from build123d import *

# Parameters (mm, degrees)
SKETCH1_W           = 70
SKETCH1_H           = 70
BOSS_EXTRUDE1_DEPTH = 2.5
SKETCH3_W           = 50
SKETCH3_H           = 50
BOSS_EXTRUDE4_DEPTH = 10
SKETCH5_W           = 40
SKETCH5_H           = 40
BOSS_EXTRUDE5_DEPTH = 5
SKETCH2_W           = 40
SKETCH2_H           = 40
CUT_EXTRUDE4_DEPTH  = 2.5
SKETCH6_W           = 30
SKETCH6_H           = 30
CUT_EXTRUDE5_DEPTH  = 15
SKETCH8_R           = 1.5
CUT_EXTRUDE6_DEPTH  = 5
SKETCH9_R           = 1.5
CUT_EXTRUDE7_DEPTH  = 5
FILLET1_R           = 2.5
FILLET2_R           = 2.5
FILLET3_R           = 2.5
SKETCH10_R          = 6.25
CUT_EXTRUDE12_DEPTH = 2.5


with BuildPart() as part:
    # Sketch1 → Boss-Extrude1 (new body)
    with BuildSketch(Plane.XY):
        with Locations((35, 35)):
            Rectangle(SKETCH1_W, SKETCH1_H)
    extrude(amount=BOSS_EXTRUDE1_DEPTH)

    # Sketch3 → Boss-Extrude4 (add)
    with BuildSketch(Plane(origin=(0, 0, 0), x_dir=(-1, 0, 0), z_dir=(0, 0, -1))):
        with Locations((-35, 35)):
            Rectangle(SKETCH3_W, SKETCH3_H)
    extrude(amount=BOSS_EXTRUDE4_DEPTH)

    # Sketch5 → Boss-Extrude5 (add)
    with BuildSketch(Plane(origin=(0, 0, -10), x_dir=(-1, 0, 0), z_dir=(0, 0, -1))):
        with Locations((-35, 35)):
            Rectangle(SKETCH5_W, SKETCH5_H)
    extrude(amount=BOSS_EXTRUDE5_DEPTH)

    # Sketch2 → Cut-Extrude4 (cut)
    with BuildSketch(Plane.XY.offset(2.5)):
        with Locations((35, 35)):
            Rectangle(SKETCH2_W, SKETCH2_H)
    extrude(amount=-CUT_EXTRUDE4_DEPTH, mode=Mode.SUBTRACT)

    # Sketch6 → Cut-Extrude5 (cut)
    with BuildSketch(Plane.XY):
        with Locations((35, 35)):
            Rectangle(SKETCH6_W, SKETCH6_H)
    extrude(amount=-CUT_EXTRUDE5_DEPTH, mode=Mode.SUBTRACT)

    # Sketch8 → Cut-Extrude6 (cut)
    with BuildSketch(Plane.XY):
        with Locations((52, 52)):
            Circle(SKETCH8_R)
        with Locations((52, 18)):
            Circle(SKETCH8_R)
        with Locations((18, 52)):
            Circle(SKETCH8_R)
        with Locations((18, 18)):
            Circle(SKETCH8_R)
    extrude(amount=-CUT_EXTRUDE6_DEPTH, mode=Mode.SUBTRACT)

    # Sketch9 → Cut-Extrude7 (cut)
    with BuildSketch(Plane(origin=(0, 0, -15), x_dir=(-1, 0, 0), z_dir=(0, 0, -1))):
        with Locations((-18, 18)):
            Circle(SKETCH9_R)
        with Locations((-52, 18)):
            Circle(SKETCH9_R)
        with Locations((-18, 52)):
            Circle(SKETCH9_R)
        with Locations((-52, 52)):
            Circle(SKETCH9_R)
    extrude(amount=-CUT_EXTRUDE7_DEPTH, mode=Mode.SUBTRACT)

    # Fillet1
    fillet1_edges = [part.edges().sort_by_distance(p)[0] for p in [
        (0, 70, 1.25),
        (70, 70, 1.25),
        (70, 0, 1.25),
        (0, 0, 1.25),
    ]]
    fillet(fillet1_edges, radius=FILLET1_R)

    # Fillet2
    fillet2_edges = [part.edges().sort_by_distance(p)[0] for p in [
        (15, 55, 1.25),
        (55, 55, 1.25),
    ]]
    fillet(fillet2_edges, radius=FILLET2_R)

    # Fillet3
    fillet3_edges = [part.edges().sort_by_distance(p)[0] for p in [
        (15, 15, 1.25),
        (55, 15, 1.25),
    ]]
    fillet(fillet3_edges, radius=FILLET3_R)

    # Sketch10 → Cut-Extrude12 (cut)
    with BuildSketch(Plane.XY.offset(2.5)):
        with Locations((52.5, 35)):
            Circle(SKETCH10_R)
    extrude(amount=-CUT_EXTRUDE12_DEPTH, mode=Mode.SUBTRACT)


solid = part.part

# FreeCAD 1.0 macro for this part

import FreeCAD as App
import Part
import Sketcher


def edges_at(feature, points):
    """Names of the edges that pass closest to the given points."""
    edges = feature.Shape.Edges
    near = lambda p: min(range(len(edges)), key=lambda i: edges[i].distToShape(Part.Vertex(*p))[0])
    return sorted({f"Edge{near(p) + 1}" for p in points})

doc = App.newDocument("Part")
body = doc.addObject("PartDesign::Body", "Body")

sketch1 = doc.addObject("Sketcher::SketchObject", "Sketch")
body.addObject(sketch1)
sketch1.AttachmentSupport = (doc.XY_Plane, [""])
sketch1.MapMode = "FlatFace"
sketch1.addGeometry(Part.LineSegment(App.Vector(0, 70, 0), App.Vector(0, 0, 0)), False)
sketch1.addGeometry(Part.LineSegment(App.Vector(0, 0, 0), App.Vector(70, 0, 0)), False)
sketch1.addGeometry(Part.LineSegment(App.Vector(70, 0, 0), App.Vector(70, 70, 0)), False)
sketch1.addGeometry(Part.LineSegment(App.Vector(70, 70, 0), App.Vector(0, 70, 0)), False)
sketch1.addConstraint(Sketcher.Constraint("Coincident", 0, 2, 1, 1))
sketch1.addConstraint(Sketcher.Constraint("Coincident", 1, 2, 2, 1))
sketch1.addConstraint(Sketcher.Constraint("Coincident", 2, 2, 3, 1))
sketch1.addConstraint(Sketcher.Constraint("Coincident", 3, 2, 0, 1))
sketch1.addConstraint(Sketcher.Constraint("Vertical", 0))
sketch1.addConstraint(Sketcher.Constraint("Horizontal", 1))
sketch1.addConstraint(Sketcher.Constraint("Vertical", 2))
sketch1.addConstraint(Sketcher.Constraint("Horizontal", 3))
sketch1.addConstraint(Sketcher.Constraint("Coincident", 0, 2, -1, 1))
sketch1.addConstraint(Sketcher.Constraint("Equal", 3, 0))
sketch1.addConstraint(Sketcher.Constraint("DistanceX", 1, 1, 1, 2, 70.0))
pad1 = doc.addObject("PartDesign::Pad", "Pad")
body.addObject(pad1)
pad1.Profile = sketch1
pad1.Length = 2.5

sketch2 = doc.addObject("Sketcher::SketchObject", "Sketch001")
body.addObject(sketch2)
sketch2.AttachmentSupport = (doc.XY_Plane, [""])
sketch2.MapMode = "FlatFace"
sketch2.addGeometry(Part.LineSegment(App.Vector(60, 60, 0), App.Vector(60, 10, 0)), False)
sketch2.addGeometry(Part.LineSegment(App.Vector(60, 10, 0), App.Vector(10, 10, 0)), False)
sketch2.addGeometry(Part.LineSegment(App.Vector(10, 10, 0), App.Vector(10, 60, 0)), False)
sketch2.addGeometry(Part.LineSegment(App.Vector(10, 60, 0), App.Vector(60, 60, 0)), False)
sketch2.addConstraint(Sketcher.Constraint("Coincident", 0, 2, 1, 1))
sketch2.addConstraint(Sketcher.Constraint("Coincident", 1, 2, 2, 1))
sketch2.addConstraint(Sketcher.Constraint("Coincident", 2, 2, 3, 1))
sketch2.addConstraint(Sketcher.Constraint("Coincident", 3, 2, 0, 1))
sketch2.addConstraint(Sketcher.Constraint("Vertical", 0))
sketch2.addConstraint(Sketcher.Constraint("Horizontal", 1))
sketch2.addConstraint(Sketcher.Constraint("Vertical", 2))
sketch2.addConstraint(Sketcher.Constraint("Horizontal", 3))
sketch2.addConstraint(Sketcher.Constraint("Equal", 3, 0))
sketch2.addConstraint(Sketcher.Constraint("DistanceX", 1, 2, 1, 1, 50.0))
sketch2.addConstraint(Sketcher.Constraint("DistanceX", -1, 1, 0, 2, 60.0))
sketch2.addConstraint(Sketcher.Constraint("DistanceY", -1, 1, 0, 2, 10.0))
pad2 = doc.addObject("PartDesign::Pad", "Pad001")
body.addObject(pad2)
pad2.Profile = sketch2
pad2.Length = 10
pad2.Reversed = True

sketch3 = doc.addObject("Sketcher::SketchObject", "Sketch002")
body.addObject(sketch3)
sketch3.AttachmentSupport = (doc.XY_Plane, [""])
sketch3.MapMode = "FlatFace"
sketch3.AttachmentOffset = App.Placement(App.Vector(0, 0, -10), App.Rotation())
sketch3.addGeometry(Part.LineSegment(App.Vector(55, 55, 0), App.Vector(55, 15, 0)), False)
sketch3.addGeometry(Part.LineSegment(App.Vector(55, 15, 0), App.Vector(15, 15, 0)), False)
sketch3.addGeometry(Part.LineSegment(App.Vector(15, 15, 0), App.Vector(15, 55, 0)), False)
sketch3.addGeometry(Part.LineSegment(App.Vector(15, 55, 0), App.Vector(55, 55, 0)), False)
sketch3.addConstraint(Sketcher.Constraint("Coincident", 0, 2, 1, 1))
sketch3.addConstraint(Sketcher.Constraint("Coincident", 1, 2, 2, 1))
sketch3.addConstraint(Sketcher.Constraint("Coincident", 2, 2, 3, 1))
sketch3.addConstraint(Sketcher.Constraint("Coincident", 3, 2, 0, 1))
sketch3.addConstraint(Sketcher.Constraint("Vertical", 0))
sketch3.addConstraint(Sketcher.Constraint("Horizontal", 1))
sketch3.addConstraint(Sketcher.Constraint("Vertical", 2))
sketch3.addConstraint(Sketcher.Constraint("Horizontal", 3))
sketch3.addConstraint(Sketcher.Constraint("Equal", 3, 0))
sketch3.addConstraint(Sketcher.Constraint("DistanceX", 1, 2, 1, 1, 40.0))
sketch3.addConstraint(Sketcher.Constraint("DistanceX", -1, 1, 0, 2, 55.0))
sketch3.addConstraint(Sketcher.Constraint("DistanceY", -1, 1, 0, 2, 15.0))
pad3 = doc.addObject("PartDesign::Pad", "Pad002")
body.addObject(pad3)
pad3.Profile = sketch3
pad3.Length = 5
pad3.Reversed = True

sketch4 = doc.addObject("Sketcher::SketchObject", "Sketch003")
body.addObject(sketch4)
sketch4.AttachmentSupport = (doc.XY_Plane, [""])
sketch4.MapMode = "FlatFace"
sketch4.AttachmentOffset = App.Placement(App.Vector(0, 0, 2.5), App.Rotation())
sketch4.addGeometry(Part.LineSegment(App.Vector(15, 55, 0), App.Vector(15, 15, 0)), False)
sketch4.addGeometry(Part.LineSegment(App.Vector(15, 15, 0), App.Vector(55, 15, 0)), False)
sketch4.addGeometry(Part.LineSegment(App.Vector(55, 15, 0), App.Vector(55, 55, 0)), False)
sketch4.addGeometry(Part.LineSegment(App.Vector(55, 55, 0), App.Vector(15, 55, 0)), False)
sketch4.addConstraint(Sketcher.Constraint("Coincident", 0, 2, 1, 1))
sketch4.addConstraint(Sketcher.Constraint("Coincident", 1, 2, 2, 1))
sketch4.addConstraint(Sketcher.Constraint("Coincident", 2, 2, 3, 1))
sketch4.addConstraint(Sketcher.Constraint("Coincident", 3, 2, 0, 1))
sketch4.addConstraint(Sketcher.Constraint("Vertical", 0))
sketch4.addConstraint(Sketcher.Constraint("Horizontal", 1))
sketch4.addConstraint(Sketcher.Constraint("Vertical", 2))
sketch4.addConstraint(Sketcher.Constraint("Horizontal", 3))
sketch4.addConstraint(Sketcher.Constraint("Equal", 3, 0))
sketch4.addConstraint(Sketcher.Constraint("DistanceX", 1, 1, 1, 2, 40.0))
sketch4.addConstraint(Sketcher.Constraint("DistanceX", -1, 1, 0, 2, 15.0))
sketch4.addConstraint(Sketcher.Constraint("DistanceY", -1, 1, 0, 2, 15.0))
pocket1 = doc.addObject("PartDesign::Pocket", "Pocket")
body.addObject(pocket1)
pocket1.Profile = sketch4
pocket1.Length = 2.5

sketch5 = doc.addObject("Sketcher::SketchObject", "Sketch004")
body.addObject(sketch5)
sketch5.AttachmentSupport = (doc.XY_Plane, [""])
sketch5.MapMode = "FlatFace"
sketch5.addGeometry(Part.LineSegment(App.Vector(20, 50, 0), App.Vector(20, 20, 0)), False)
sketch5.addGeometry(Part.LineSegment(App.Vector(20, 20, 0), App.Vector(50, 20, 0)), False)
sketch5.addGeometry(Part.LineSegment(App.Vector(50, 20, 0), App.Vector(50, 50, 0)), False)
sketch5.addGeometry(Part.LineSegment(App.Vector(50, 50, 0), App.Vector(20, 50, 0)), False)
sketch5.addConstraint(Sketcher.Constraint("Coincident", 0, 2, 1, 1))
sketch5.addConstraint(Sketcher.Constraint("Coincident", 1, 2, 2, 1))
sketch5.addConstraint(Sketcher.Constraint("Coincident", 2, 2, 3, 1))
sketch5.addConstraint(Sketcher.Constraint("Coincident", 3, 2, 0, 1))
sketch5.addConstraint(Sketcher.Constraint("Vertical", 0))
sketch5.addConstraint(Sketcher.Constraint("Horizontal", 1))
sketch5.addConstraint(Sketcher.Constraint("Vertical", 2))
sketch5.addConstraint(Sketcher.Constraint("Horizontal", 3))
sketch5.addConstraint(Sketcher.Constraint("Equal", 3, 0))
sketch5.addConstraint(Sketcher.Constraint("DistanceX", 1, 1, 1, 2, 30.0))
sketch5.addConstraint(Sketcher.Constraint("DistanceX", -1, 1, 0, 2, 20.0))
sketch5.addConstraint(Sketcher.Constraint("DistanceY", -1, 1, 0, 2, 20.0))
pocket2 = doc.addObject("PartDesign::Pocket", "Pocket001")
body.addObject(pocket2)
pocket2.Profile = sketch5
pocket2.Length = 15

sketch6 = doc.addObject("Sketcher::SketchObject", "Sketch005")
body.addObject(sketch6)
sketch6.AttachmentSupport = (doc.XY_Plane, [""])
sketch6.MapMode = "FlatFace"
sketch6.addGeometry(Part.Circle(App.Vector(52, 52, 0), App.Vector(0, 0, 1), 1.5), False)
sketch6.addGeometry(Part.Circle(App.Vector(52, 18, 0), App.Vector(0, 0, 1), 1.5), False)
sketch6.addGeometry(Part.Circle(App.Vector(18, 52, 0), App.Vector(0, 0, 1), 1.5), False)
sketch6.addGeometry(Part.Circle(App.Vector(18, 18, 0), App.Vector(0, 0, 1), 1.5), False)
sketch6.addConstraint(Sketcher.Constraint("Equal", 0, 1))
sketch6.addConstraint(Sketcher.Constraint("Equal", 1, 2))
sketch6.addConstraint(Sketcher.Constraint("Equal", 2, 3))
sketch6.addConstraint(Sketcher.Constraint("Horizontal", 0, 3, 2, 3))
sketch6.addConstraint(Sketcher.Constraint("Horizontal", 1, 3, 3, 3))
sketch6.addConstraint(Sketcher.Constraint("Vertical", 0, 3, 1, 3))
sketch6.addConstraint(Sketcher.Constraint("Vertical", 2, 3, 3, 3))
sketch6.addConstraint(Sketcher.Constraint("Diameter", 0, 3.0))
sketch6.addConstraint(Sketcher.Constraint("DistanceX", -1, 1, 0, 3, 52.0))
sketch6.addConstraint(Sketcher.Constraint("DistanceY", -1, 1, 0, 3, 52.0))
sketch6.addConstraint(Sketcher.Constraint("DistanceY", -1, 1, 1, 3, 18.0))
sketch6.addConstraint(Sketcher.Constraint("DistanceX", -1, 1, 2, 3, 18.0))
pocket3 = doc.addObject("PartDesign::Pocket", "Pocket002")
body.addObject(pocket3)
pocket3.Profile = sketch6
pocket3.Length = 5

sketch7 = doc.addObject("Sketcher::SketchObject", "Sketch006")
body.addObject(sketch7)
sketch7.AttachmentSupport = (doc.XY_Plane, [""])
sketch7.MapMode = "FlatFace"
sketch7.AttachmentOffset = App.Placement(App.Vector(0, 0, -15), App.Rotation())
sketch7.addGeometry(Part.Circle(App.Vector(18, 18, 0), App.Vector(0, 0, 1), 1.5), False)
sketch7.addGeometry(Part.Circle(App.Vector(52, 18, 0), App.Vector(0, 0, 1), 1.5), False)
sketch7.addGeometry(Part.Circle(App.Vector(18, 52, 0), App.Vector(0, 0, 1), 1.5), False)
sketch7.addGeometry(Part.Circle(App.Vector(52, 52, 0), App.Vector(0, 0, 1), 1.5), False)
sketch7.addConstraint(Sketcher.Constraint("Equal", 0, 1))
sketch7.addConstraint(Sketcher.Constraint("Equal", 1, 2))
sketch7.addConstraint(Sketcher.Constraint("Equal", 2, 3))
sketch7.addConstraint(Sketcher.Constraint("Horizontal", 0, 3, 1, 3))
sketch7.addConstraint(Sketcher.Constraint("Horizontal", 2, 3, 3, 3))
sketch7.addConstraint(Sketcher.Constraint("Vertical", 0, 3, 2, 3))
sketch7.addConstraint(Sketcher.Constraint("Vertical", 1, 3, 3, 3))
sketch7.addConstraint(Sketcher.Constraint("Diameter", 0, 3.0))
sketch7.addConstraint(Sketcher.Constraint("DistanceX", -1, 1, 0, 3, 18.0))
sketch7.addConstraint(Sketcher.Constraint("DistanceY", -1, 1, 0, 3, 18.0))
sketch7.addConstraint(Sketcher.Constraint("DistanceX", -1, 1, 1, 3, 52.0))
sketch7.addConstraint(Sketcher.Constraint("DistanceY", -1, 1, 2, 3, 52.0))
pocket4 = doc.addObject("PartDesign::Pocket", "Pocket003")
body.addObject(pocket4)
pocket4.Profile = sketch7
pocket4.Length = 5
pocket4.Reversed = True
doc.recompute()

fillet = doc.addObject("PartDesign::Fillet", "Fillet")
body.addObject(fillet)
fillet.Base = (pocket4, edges_at(pocket4, [
    (0, 70, 1.25),
    (70, 70, 1.25),
    (70, 0, 1.25),
    (0, 0, 1.25),
]))
fillet.Radius = 2.5
doc.recompute()

fillet2 = doc.addObject("PartDesign::Fillet", "Fillet001")
body.addObject(fillet2)
fillet2.Base = (fillet, edges_at(fillet, [(15, 55, 1.25), (55, 55, 1.25)]))
fillet2.Radius = 2.5
doc.recompute()

fillet3 = doc.addObject("PartDesign::Fillet", "Fillet002")
body.addObject(fillet3)
fillet3.Base = (fillet2, edges_at(fillet2, [(15, 15, 1.25), (55, 15, 1.25)]))
fillet3.Radius = 2.5

sketch8 = doc.addObject("Sketcher::SketchObject", "Sketch007")
body.addObject(sketch8)
sketch8.AttachmentSupport = (doc.XY_Plane, [""])
sketch8.MapMode = "FlatFace"
sketch8.AttachmentOffset = App.Placement(App.Vector(0, 0, 2.5), App.Rotation())
sketch8.addGeometry(Part.Circle(App.Vector(52.5, 35, 0), App.Vector(0, 0, 1), 6.25), False)
sketch8.addConstraint(Sketcher.Constraint("Diameter", 0, 12.5))
sketch8.addConstraint(Sketcher.Constraint("DistanceY", -1, 1, 0, 3, 35.0))
sketch8.addConstraint(Sketcher.Constraint("DistanceX", -1, 1, 0, 3, 52.5))
pocket5 = doc.addObject("PartDesign::Pocket", "Pocket004")
body.addObject(pocket5)
pocket5.Profile = sketch8
pocket5.Length = 2.5

doc.recompute()
